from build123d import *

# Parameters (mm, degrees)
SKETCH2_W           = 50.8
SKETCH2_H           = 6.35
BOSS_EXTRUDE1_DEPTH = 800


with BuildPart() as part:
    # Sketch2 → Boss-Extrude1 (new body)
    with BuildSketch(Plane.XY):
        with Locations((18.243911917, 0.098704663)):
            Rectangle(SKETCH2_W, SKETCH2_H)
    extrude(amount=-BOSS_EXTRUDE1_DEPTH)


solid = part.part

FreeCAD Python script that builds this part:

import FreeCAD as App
import Part
import Sketcher

V = App.Vector
Q = App.Units.Quantity


def add_polygon(sketch, points):
    """Adds a closed chain of lines whose ends are joined by coincident constraints."""
    first, n = sketch.GeometryCount, len(points)
    for a, b in zip(points, points[1:] + points[:1]):
        sketch.addGeometry(Part.LineSegment(App.Vector(*a, 0), App.Vector(*b, 0)), False)
    for i in range(n):
        sketch.addConstraint(Sketcher.Constraint("Coincident", first + i, 2, first + (i + 1) % n, 1))

doc = App.newDocument("Part")
params = doc.addObject("Spreadsheet::Sheet", "Params")
for row, (alias, value) in enumerate([
    ("sketch1_width", "2 in"),
    ("sketch1_height", "0.25 in"),
    ("pad1_length", "800 mm"),
], start=1):
    params.set(f"A{row}", alias)
    params.set(f"B{row}", "=" + value)
    params.setAlias(f"B{row}", alias)

body = doc.addObject("PartDesign::Body", "Body")

# Sketch on XY plane
sketch1 = body.newObject("Sketcher::SketchObject", "Sketch")
sketch1.AttachmentSupport = (doc.getObject("XY_Plane"), [""])
sketch1.MapMode = "FlatFace"
add_polygon(sketch1, [(-7, 3), (-7, -3), (44, -3), (44, 3)])  # lines 0-3
sketch1.addConstraint(Sketcher.Constraint("Vertical", 0))
sketch1.addConstraint(Sketcher.Constraint("Horizontal", 1))
sketch1.addConstraint(Sketcher.Constraint("Vertical", 2))
sketch1.addConstraint(Sketcher.Constraint("Horizontal", 3))
sketch1.addConstraint(Sketcher.Constraint("DistanceX", 1, 1, 1, 2, Q("2 in")))
sketch1.addConstraint(Sketcher.Constraint("DistanceY", 0, 2, 0, 1, Q("0.25 in")))
sketch1.addConstraint(Sketcher.Constraint("DistanceX", 0, 2, -1, 1, 7.156088))
sketch1.addConstraint(Sketcher.Constraint("DistanceY", 0, 2, -1, 1, 3.076295))
sketch1.setExpression("Constraints[8]", "Params.sketch1_width")
sketch1.setExpression("Constraints[9]", "Params.sketch1_height")
pad1 = body.newObject("PartDesign::Pad", "Pad")
pad1.Profile = sketch1
pad1.setExpression("Length", "Params.pad1_length")
pad1.Reversed = True

doc.recompute()
